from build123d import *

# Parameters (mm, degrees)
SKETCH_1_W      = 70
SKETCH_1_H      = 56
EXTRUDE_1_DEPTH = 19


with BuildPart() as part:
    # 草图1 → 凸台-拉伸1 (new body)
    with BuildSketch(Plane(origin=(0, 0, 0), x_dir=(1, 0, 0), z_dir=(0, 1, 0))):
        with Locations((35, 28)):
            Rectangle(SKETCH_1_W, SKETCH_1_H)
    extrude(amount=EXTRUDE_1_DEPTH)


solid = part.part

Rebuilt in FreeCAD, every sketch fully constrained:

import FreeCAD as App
import Part
import Sketcher

V = App.Vector

doc = App.newDocument("Part")
body = doc.addObject("PartDesign::Body", "Body")

sketch1 = doc.addObject("Sketcher::SketchObject", "Sketch")
body.addObject(sketch1)
sketch1.AttachmentSupport = (doc.XZ_Plane, [""])
sketch1.MapMode = "FlatFace"
sketch1.addGeometry(Part.LineSegment(V(0, -56, 0), V(0, 0, 0)), False)
sketch1.addGeometry(Part.LineSegment(V(0, 0, 0), V(70, 0, 0)), False)
sketch1.addGeometry(Part.LineSegment(V(70, 0, 0), V(70, -56, 0)), False)
sketch1.addGeometry(Part.LineSegment(V(70, -56, 0), V(0, -56, 0)), False)
sketch1.addConstraint(Sketcher.Constraint("Coincident", 0, 2, 1, 1))
sketch1.addConstraint(Sketcher.Constraint("Coincident", 1, 2, 2, 1))
sketch1.addConstraint(Sketcher.Constraint("Coincident", 2, 2, 3, 1))
sketch1.addConstraint(Sketcher.Constraint("Coincident", 3, 2, 0, 1))
sketch1.addConstraint(Sketcher.Constraint("Vertical", 0))
sketch1.addConstraint(Sketcher.Constraint("Horizontal", 1))
sketch1.addConstraint(Sketcher.Constraint("Vertical", 2))
sketch1.addConstraint(Sketcher.Constraint("Horizontal", 3))
sketch1.addConstraint(Sketcher.Constraint("Coincident", 0, 2, -1, 1))
sketch1.addConstraint(Sketcher.Constraint("DistanceX", 1, 1, 1, 2, 70.0))
sketch1.addConstraint(Sketcher.Constraint("DistanceY", 0, 1, 0, 2, 56.0))
pad1 = doc.addObject("PartDesign::Pad", "Pad")
body.addObject(pad1)
pad1.Profile = sketch1
pad1.Length = 19
pad1.Reversed = True

doc.recompute()
